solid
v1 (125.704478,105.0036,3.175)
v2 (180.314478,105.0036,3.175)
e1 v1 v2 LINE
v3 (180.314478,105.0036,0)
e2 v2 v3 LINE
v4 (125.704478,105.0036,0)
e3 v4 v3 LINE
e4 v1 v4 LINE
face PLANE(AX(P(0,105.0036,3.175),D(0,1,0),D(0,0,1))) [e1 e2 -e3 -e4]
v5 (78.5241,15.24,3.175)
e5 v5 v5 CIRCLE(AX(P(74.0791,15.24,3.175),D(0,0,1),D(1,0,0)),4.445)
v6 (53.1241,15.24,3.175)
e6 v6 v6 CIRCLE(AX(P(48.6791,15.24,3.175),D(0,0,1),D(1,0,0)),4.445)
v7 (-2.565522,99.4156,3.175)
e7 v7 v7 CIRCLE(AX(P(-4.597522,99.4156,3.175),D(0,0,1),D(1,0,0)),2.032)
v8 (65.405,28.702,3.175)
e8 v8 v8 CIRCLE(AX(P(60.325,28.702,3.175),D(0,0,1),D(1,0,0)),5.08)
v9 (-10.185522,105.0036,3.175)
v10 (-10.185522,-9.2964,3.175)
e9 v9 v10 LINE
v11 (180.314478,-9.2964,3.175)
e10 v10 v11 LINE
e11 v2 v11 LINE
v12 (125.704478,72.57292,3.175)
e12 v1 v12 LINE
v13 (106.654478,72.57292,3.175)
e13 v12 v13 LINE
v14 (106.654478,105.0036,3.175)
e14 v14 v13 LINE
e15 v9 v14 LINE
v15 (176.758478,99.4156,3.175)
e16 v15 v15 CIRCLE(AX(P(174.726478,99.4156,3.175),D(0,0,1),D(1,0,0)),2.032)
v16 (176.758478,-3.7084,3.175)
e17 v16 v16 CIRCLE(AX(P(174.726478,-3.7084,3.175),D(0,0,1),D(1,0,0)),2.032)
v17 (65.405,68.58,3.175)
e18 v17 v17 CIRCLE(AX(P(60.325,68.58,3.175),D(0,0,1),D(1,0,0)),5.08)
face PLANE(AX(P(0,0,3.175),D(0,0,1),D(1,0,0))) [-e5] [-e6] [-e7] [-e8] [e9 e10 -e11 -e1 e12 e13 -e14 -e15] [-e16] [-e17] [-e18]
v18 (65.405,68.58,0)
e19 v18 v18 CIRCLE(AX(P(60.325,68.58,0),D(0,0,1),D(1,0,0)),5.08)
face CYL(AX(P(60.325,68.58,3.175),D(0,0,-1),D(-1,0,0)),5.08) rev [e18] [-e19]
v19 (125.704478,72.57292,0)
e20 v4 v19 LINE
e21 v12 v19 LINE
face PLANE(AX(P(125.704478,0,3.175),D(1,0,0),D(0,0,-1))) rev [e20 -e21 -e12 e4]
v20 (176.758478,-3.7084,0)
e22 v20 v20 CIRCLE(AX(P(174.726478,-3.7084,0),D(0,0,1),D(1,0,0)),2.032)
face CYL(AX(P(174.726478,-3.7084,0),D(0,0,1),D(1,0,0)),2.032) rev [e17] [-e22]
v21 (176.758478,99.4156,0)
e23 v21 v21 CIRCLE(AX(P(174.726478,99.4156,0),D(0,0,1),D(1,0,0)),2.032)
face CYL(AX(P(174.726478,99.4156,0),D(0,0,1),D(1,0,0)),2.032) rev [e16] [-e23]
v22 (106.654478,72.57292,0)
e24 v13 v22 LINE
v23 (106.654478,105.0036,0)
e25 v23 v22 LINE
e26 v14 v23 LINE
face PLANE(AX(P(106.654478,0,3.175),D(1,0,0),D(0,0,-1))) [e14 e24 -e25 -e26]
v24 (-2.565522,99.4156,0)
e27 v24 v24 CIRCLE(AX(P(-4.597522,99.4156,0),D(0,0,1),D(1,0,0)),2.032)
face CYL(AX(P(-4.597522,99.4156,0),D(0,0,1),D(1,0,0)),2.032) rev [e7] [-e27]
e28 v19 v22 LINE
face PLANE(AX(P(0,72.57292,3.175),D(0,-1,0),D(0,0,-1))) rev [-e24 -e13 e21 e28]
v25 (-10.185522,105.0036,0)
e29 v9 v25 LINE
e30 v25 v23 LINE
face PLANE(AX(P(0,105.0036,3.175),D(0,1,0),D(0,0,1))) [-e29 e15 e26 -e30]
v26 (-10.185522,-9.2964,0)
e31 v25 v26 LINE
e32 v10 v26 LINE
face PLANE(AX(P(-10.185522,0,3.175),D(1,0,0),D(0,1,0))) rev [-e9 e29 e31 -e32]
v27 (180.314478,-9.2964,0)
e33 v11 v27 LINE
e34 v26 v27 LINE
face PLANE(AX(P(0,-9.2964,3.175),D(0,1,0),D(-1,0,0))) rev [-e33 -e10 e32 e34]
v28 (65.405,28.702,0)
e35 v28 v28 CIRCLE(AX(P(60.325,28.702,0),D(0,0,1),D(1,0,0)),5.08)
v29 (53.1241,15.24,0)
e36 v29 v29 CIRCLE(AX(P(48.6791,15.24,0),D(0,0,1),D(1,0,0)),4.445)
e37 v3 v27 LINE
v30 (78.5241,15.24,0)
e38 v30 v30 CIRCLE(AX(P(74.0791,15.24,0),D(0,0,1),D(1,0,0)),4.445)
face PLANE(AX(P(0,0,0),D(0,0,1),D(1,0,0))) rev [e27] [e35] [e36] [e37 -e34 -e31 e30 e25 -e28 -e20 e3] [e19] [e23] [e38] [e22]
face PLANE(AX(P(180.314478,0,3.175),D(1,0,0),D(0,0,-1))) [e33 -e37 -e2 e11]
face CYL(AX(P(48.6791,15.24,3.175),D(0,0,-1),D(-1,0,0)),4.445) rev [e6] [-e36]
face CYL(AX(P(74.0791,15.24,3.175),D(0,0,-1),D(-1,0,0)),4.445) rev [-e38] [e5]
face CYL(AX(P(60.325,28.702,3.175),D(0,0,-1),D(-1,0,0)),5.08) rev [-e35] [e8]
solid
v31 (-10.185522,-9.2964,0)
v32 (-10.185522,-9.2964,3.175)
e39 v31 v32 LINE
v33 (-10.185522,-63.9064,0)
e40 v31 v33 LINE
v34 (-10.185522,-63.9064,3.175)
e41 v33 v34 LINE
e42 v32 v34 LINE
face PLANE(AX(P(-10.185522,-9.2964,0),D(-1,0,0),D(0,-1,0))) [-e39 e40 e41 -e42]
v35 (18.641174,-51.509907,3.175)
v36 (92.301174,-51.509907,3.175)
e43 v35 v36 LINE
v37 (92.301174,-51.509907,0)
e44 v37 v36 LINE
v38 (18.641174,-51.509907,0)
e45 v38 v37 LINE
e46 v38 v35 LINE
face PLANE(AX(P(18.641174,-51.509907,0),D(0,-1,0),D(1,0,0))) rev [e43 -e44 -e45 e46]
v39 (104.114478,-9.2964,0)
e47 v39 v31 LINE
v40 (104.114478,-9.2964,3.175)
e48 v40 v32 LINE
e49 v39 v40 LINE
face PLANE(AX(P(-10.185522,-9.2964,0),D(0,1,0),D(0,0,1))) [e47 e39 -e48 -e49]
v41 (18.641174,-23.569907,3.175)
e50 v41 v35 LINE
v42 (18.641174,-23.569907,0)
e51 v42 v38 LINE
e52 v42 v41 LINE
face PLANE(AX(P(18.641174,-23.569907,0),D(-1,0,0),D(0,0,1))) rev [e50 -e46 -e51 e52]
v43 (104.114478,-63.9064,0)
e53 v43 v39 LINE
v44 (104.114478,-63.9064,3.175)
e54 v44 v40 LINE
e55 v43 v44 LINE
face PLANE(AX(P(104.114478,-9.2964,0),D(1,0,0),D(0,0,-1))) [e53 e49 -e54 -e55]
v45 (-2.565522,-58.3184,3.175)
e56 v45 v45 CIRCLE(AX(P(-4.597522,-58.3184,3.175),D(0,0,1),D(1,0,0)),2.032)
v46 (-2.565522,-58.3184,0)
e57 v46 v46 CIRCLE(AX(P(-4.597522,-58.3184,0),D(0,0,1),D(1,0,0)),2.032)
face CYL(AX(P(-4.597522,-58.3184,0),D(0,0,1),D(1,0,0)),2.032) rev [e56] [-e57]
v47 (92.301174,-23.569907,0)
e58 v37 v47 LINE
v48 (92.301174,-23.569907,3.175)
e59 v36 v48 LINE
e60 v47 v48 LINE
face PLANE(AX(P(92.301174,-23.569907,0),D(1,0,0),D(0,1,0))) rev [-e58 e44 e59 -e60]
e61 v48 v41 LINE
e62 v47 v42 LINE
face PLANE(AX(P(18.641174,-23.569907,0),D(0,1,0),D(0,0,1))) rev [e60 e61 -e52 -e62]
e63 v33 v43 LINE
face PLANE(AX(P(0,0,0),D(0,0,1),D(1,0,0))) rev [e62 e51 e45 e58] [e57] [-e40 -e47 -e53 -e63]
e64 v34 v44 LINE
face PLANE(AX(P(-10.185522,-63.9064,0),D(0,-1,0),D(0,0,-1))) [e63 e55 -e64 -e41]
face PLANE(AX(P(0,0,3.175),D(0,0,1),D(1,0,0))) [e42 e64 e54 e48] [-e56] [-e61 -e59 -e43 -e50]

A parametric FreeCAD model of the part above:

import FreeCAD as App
import Part
import Sketcher
from FreeCAD import Vector
Q = App.Units.Quantity


def add_polygon(sketch, points):
    """Adds a closed chain of lines whose ends are joined by coincident constraints."""
    first, n = sketch.GeometryCount, len(points)
    for a, b in zip(points, points[1:] + points[:1]):
        sketch.addGeometry(Part.LineSegment(App.Vector(*a, 0), App.Vector(*b, 0)), False)
    for i in range(n):
        sketch.addConstraint(Sketcher.Constraint("Coincident", first + i, 2, first + (i + 1) % n, 1))

doc = App.newDocument("Part")
body = doc.addObject("PartDesign::Body", "Body")

# Sketch on XY plane
sketch1 = doc.addObject("Sketcher::SketchObject", "Sketch")
body.addObject(sketch1)
sketch1.AttachmentSupport = (doc.XY_Plane, [""])
sketch1.MapMode = "FlatFace"
add_polygon(sketch1, [(106.7, 105), (-10.2, 105), (-10.2, -9.3), (180.3, -9.3), (180.3, 105), (125.7, 105), (125.7, 72.6), (106.7, 72.6)])  # lines 0-7
sketch1.addGeometry(Part.Circle(Vector(48.7, 15.2, 0), Vector(0, 0, 1), 4.4), False)  # 8
sketch1.addGeometry(Part.Circle(Vector(60.3, 28.7, 0), Vector(0, 0, 1), 5.1), False)  # 9
sketch1.addGeometry(Part.Circle(Vector(74.1, 15.2, 0), Vector(0, 0, 1), 4.4), False)  # 10
sketch1.addGeometry(Part.Circle(Vector(60.3, 68.6, 0), Vector(0, 0, 1), 5.1), False)  # 11
sketch1.addConstraint([
    Sketcher.Constraint("Horizontal", 0),
    Sketcher.Constraint("Vertical", 1),
    Sketcher.Constraint("Horizontal", 2),
    Sketcher.Constraint("Vertical", 3),
    Sketcher.Constraint("Horizontal", 4),
    Sketcher.Constraint("Vertical", 5),
    Sketcher.Constraint("Horizontal", 6),
    Sketcher.Constraint("Vertical", 7),
    Sketcher.Constraint("Equal", 8, 10),
    Sketcher.Constraint("Equal", 9, 11),
    Sketcher.Constraint("Horizontal", 8, 3, 10, 3),
    Sketcher.Constraint("Horizontal", 0, 2, 3, 2),
    Sketcher.Constraint("Vertical", 9, 3, 11, 3),
    Sketcher.Constraint("Diameter", 9, Q("0.4 in")),
    Sketcher.Constraint("Diameter", 8, Q("0.35 in")),
    Sketcher.Constraint("DistanceX", 0, 2, 0, 1, Q("4.6 in")),
    Sketcher.Constraint("DistanceX", 2, 1, 2, 2, Q("7.5 in")),
    Sketcher.Constraint("DistanceY", 1, 2, 1, 1, Q("4.5 in")),
    Sketcher.Constraint("DistanceX", 8, 3, 10, 3, Q("1 in")),
    Sketcher.Constraint("DistanceX", 4, 2, 4, 1, Q("2.15 in")),
    Sketcher.Constraint("DistanceY", -1, 1, 8, 3, Q("0.6 in")),
    Sketcher.Constraint("DistanceY", -1, 1, 11, 3, Q("2.7 in")),
    Sketcher.Constraint("DistanceY", -1, 1, 9, 3, Q("1.13 in")),
    Sketcher.Constraint("DistanceX", -1, 1, 9, 3, Q("2.375 in")),
    Sketcher.Constraint("DistanceY", -1, 1, 0, 2, Q("4.134 in")),
    Sketcher.Constraint("DistanceX", -1, 1, 8, 3, Q("1.9165 in")),
    Sketcher.Constraint("DistanceY", 5, 2, 5, 1, 32.43068),
    Sketcher.Constraint("DistanceX", 0, 2, -1, 1, 10.185522),
])
pad1 = doc.addObject("PartDesign::Pad", "Pad")
body.addObject(pad1)
pad1.Profile = sketch1
pad1.Length = Q("0.125 in")
body2 = doc.addObject("PartDesign::Body", "Body001")

# Sketch on XY plane
sketch2 = doc.addObject("Sketcher::SketchObject", "Sketch001")
body2.addObject(sketch2)
sketch2.AttachmentSupport = (doc.getObject("XY_Plane001"), [""])
sketch2.MapMode = "FlatFace"
sketch2.AttachmentOffset = App.Placement(Vector(0, 0, 0.125 * 25.4), App.Rotation())
add_polygon(sketch2, [(-10, -9), (-10, -64), (104, -64), (104, -9)])  # lines 0-3
sketch2.addConstraint([
    Sketcher.Constraint("Vertical", 0),
    Sketcher.Constraint("Horizontal", 1),
    Sketcher.Constraint("Vertical", 2),
    Sketcher.Constraint("Horizontal", 3),
    Sketcher.Constraint("DistanceX", 1, 1, 1, 2, Q("4.5 in")),
    Sketcher.Constraint("DistanceY", 0, 2, 0, 1, Q("2.15 in")),
    Sketcher.Constraint("DistanceY", 0, 2, -1, 1, Q("2.516 in")),
    Sketcher.Constraint("DistanceX", 0, 2, -1, 1, 10.185522),
])
pad2 = doc.addObject("PartDesign::Pad", "Pad001")
body2.addObject(pad2)
pad2.Profile = sketch2
pad2.Length = Q("0.125 in")
pad2.Reversed = True

# Sketch on XY plane
sketch3 = doc.addObject("Sketcher::SketchObject", "Sketch002")
body2.addObject(sketch3)
sketch3.AttachmentSupport = (doc.getObject("XY_Plane001"), [""])
sketch3.MapMode = "FlatFace"
sketch3.AttachmentOffset = App.Placement(Vector(0, 0, 0.125 * 25.4), App.Rotation())
add_polygon(sketch3, [(19, -24), (19, -52), (92, -52), (92, -24)])  # lines 0-3
sketch3.addConstraint([
    Sketcher.Constraint("Vertical", 0),
    Sketcher.Constraint("Horizontal", 1),
    Sketcher.Constraint("Vertical", 2),
    Sketcher.Constraint("Horizontal", 3),
    Sketcher.Constraint("DistanceX", 1, 1, 1, 2, Q("2.9 in")),
    Sketcher.Constraint("DistanceY", 0, 2, 0, 1, Q("1.1 in")),
    Sketcher.Constraint("DistanceX", -1, 1, 0, 2, 18.641174),
    Sketcher.Constraint("DistanceY", 0, 2, -1, 1, 51.509907),
])
pocket1 = doc.addObject("PartDesign::Pocket", "Pocket")
body2.addObject(pocket1)
pocket1.Profile = sketch3
pocket1.Length = Q("0.125 in")
body3 = doc.addObject("PartDesign::Body", "Body002")
body3.AllowCompound = True

# Sketch on XY plane
sketch4 = doc.addObject("Sketcher::SketchObject", "Sketch003")
body3.addObject(sketch4)
sketch4.AttachmentSupport = (doc.getObject("XY_Plane002"), [""])
sketch4.MapMode = "FlatFace"
sketch4.AttachmentOffset = App.Placement(Vector(0, 0, 0.125 * 25.4), App.Rotation())
sketch4.addGeometry([
    Part.Circle(Vector(-4.6, 99.4, 0), Vector(0, 0, 1), 2),
    Part.Circle(Vector(174.7, 99.4, 0), Vector(0, 0, 1), 2),
    Part.Circle(Vector(174.7, -3.7, 0), Vector(0, 0, 1), 2),
    Part.Circle(Vector(-4.6, -58.3, 0), Vector(0, 0, 1), 2),
], False)
sketch4.addConstraint([
    Sketcher.Constraint("Equal", 0, 1),
    Sketcher.Constraint("Equal", 1, 2),
    Sketcher.Constraint("Equal", 2, 3),
    Sketcher.Constraint("Horizontal", 0, 3, 1, 3),
    Sketcher.Constraint("Vertical", 1, 3, 2, 3),
    Sketcher.Constraint("Vertical", 0, 3, 3, 3),
    Sketcher.Constraint("Diameter", 0, Q("0.16 in")),
    Sketcher.Constraint("DistanceX", 0, 3, 1, 3, Q("7.06 in")),
    Sketcher.Constraint("DistanceY", 2, 3, 1, 3, Q("4.06 in")),
    Sketcher.Constraint("DistanceY", 3, 3, 0, 3, Q("6.21 in")),
    Sketcher.Constraint("DistanceY", -1, 1, 0, 3, Q("3.914 in")),
    Sketcher.Constraint("DistanceX", 0, 3, -1, 1, 4.597522),
])
pad3 = doc.addObject("PartDesign::Pad", "Pad002")
body3.addObject(pad3)
pad3.Profile = sketch4
pad3.Length = 4.175
pad3.Reversed = True
doc.recompute()

body4 = doc.addObject("PartDesign::Body", "Body003")
body4.BaseFeature = body3
boolean = doc.addObject("PartDesign::Boolean", "Boolean")
body.addObject(boolean)
boolean.Type = "Cut"
boolean.addObjects([body4])
doc.recompute()

boolean2 = doc.addObject("PartDesign::Boolean", "Boolean001")
body2.addObject(boolean2)
boolean2.Type = "Cut"
boolean2.addObjects([body3])

doc.recompute()
